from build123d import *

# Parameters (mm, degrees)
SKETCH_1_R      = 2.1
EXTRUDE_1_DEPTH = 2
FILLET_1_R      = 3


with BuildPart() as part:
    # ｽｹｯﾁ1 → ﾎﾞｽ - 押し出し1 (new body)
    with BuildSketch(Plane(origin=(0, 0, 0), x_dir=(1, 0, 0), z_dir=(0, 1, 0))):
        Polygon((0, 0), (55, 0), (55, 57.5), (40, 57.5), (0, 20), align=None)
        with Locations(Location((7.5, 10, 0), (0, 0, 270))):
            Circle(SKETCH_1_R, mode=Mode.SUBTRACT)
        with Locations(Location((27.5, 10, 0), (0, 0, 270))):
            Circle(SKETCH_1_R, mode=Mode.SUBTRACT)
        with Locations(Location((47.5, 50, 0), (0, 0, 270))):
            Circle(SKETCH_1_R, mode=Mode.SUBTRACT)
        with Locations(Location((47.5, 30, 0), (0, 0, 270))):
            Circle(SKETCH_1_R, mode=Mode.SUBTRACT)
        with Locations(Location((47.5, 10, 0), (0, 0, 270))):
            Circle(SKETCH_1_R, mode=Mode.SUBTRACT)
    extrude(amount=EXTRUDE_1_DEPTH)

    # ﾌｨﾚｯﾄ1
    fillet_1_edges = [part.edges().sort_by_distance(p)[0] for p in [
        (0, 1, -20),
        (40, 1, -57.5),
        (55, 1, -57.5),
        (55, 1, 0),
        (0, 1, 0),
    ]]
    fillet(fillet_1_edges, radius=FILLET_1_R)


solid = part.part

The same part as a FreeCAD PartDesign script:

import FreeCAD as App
import Part
import Sketcher


def edges_at(feature, points):
    """Names of the edges that pass closest to the given points."""
    edges = feature.Shape.Edges
    near = lambda p: min(range(len(edges)), key=lambda i: edges[i].distToShape(Part.Vertex(*p))[0])
    return sorted({f"Edge{near(p) + 1}" for p in points})

doc = App.newDocument("Part")
body = doc.addObject("PartDesign::Body", "Body")

sketch1 = body.newObject("Sketcher::SketchObject", "Sketch")
sketch1.AttachmentSupport = (doc.getObject("XZ_Plane"), [""])
sketch1.MapMode = "FlatFace"
sketch1.addGeometry([
    Part.LineSegment(App.Vector(0, 0, 0), App.Vector(55, 0, 0)),
    Part.LineSegment(App.Vector(55, 0, 0), App.Vector(55, -57.5, 0)),
    Part.LineSegment(App.Vector(55, -57.5, 0), App.Vector(40, -57.5, 0)),
    Part.LineSegment(App.Vector(40, -57.5, 0), App.Vector(0, -20, 0)),
    Part.LineSegment(App.Vector(0, -20, 0), App.Vector(0, 0, 0)),
    Part.Circle(App.Vector(7.5, -10, 0), App.Vector(0, 0, 1), 2.1),
    Part.Circle(App.Vector(27.5, -10, 0), App.Vector(0, 0, 1), 2.1),
    Part.Circle(App.Vector(47.5, -10, 0), App.Vector(0, 0, 1), 2.1),
    Part.Circle(App.Vector(47.5, -30, 0), App.Vector(0, 0, 1), 2.1),
    Part.Circle(App.Vector(47.5, -50, 0), App.Vector(0, 0, 1), 2.1),
], False)
sketch1.addConstraint([
    Sketcher.Constraint("Coincident", 0, 2, 1, 1),
    Sketcher.Constraint("Coincident", 1, 2, 2, 1),
    Sketcher.Constraint("Coincident", 2, 2, 3, 1),
    Sketcher.Constraint("Coincident", 3, 2, 4, 1),
    Sketcher.Constraint("Coincident", 4, 2, 0, 1),
    Sketcher.Constraint("Horizontal", 0),
    Sketcher.Constraint("Vertical", 1),
    Sketcher.Constraint("Horizontal", 2),
    Sketcher.Constraint("Vertical", 4),
    Sketcher.Constraint("Coincident", 4, 2, -1, 1),
    Sketcher.Constraint("Equal", 5, 6),
    Sketcher.Constraint("Equal", 6, 7),
    Sketcher.Constraint("Equal", 7, 8),
    Sketcher.Constraint("Equal", 8, 9),
    Sketcher.Constraint("Horizontal", 5, 3, 6, 3),
    Sketcher.Constraint("Horizontal", 6, 3, 7, 3),
    Sketcher.Constraint("Vertical", 7, 3, 8, 3),
    Sketcher.Constraint("Vertical", 8, 3, 9, 3),
    Sketcher.Constraint("Diameter", 5, 4.2),
    Sketcher.Constraint("DistanceX", 0, 1, 0, 2, 55.0),
    Sketcher.Constraint("DistanceX", 2, 2, 2, 1, 15.0),
    Sketcher.Constraint("DistanceY", 4, 1, 4, 2, 20.0),
    Sketcher.Constraint("DistanceY", 1, 2, 1, 1, 57.5),
    Sketcher.Constraint("DistanceY", 5, 3, -1, 1, 10.0),
    Sketcher.Constraint("DistanceY", 8, 3, -1, 1, 30.0),
    Sketcher.Constraint("DistanceY", 9, 3, -1, 1, 50.0),
    Sketcher.Constraint("DistanceX", 5, 3, 6, 3, 20.0),
    Sketcher.Constraint("DistanceX", 6, 3, 7, 3, 20.0),
    Sketcher.Constraint("DistanceX", -1, 1, 5, 3, 7.5),
])
pad1 = body.newObject("PartDesign::Pad", "Pad")
pad1.Profile = sketch1
pad1.Length = 2
pad1.Reversed = True
doc.recompute()

fillet = body.newObject("PartDesign::Fillet", "Fillet")
fillet.Base = (pad1, edges_at(pad1, [
    (0, 1, -20),
    (40, 1, -57.5),
    (55, 1, -57.5),
    (55, 1, 0),
    (0, 1, 0),
]))
fillet.Radius = 3

doc.recompute()
